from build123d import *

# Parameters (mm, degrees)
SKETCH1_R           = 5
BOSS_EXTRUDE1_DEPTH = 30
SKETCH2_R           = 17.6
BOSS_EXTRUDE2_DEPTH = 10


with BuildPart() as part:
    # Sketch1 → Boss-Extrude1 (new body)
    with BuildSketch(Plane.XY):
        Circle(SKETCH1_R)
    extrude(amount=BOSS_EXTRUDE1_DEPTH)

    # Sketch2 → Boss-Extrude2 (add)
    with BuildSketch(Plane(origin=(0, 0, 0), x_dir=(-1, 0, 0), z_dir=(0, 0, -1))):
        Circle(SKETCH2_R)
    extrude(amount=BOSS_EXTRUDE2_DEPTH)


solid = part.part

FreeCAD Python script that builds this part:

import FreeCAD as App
import Part
import Sketcher
from FreeCAD import Vector
Q = App.Units.Quantity

doc = App.newDocument("Part")
params = doc.addObject("Spreadsheet::Sheet", "Params")
for row, (alias, value) in enumerate([
    ("sketch1_diameter", "10 mm"),
    ("pad1_length", "30 mm"),
    ("sketch2_diameter", "35.2 mm"),
    ("pad2_length", "10 mm"),
], start=1):
    params.set(f"A{row}", alias)
    params.set(f"B{row}", "=" + value)
    params.setAlias(f"B{row}", alias)

body = doc.addObject("PartDesign::Body", "Body")

# Sketch on XY plane
sketch1 = doc.addObject("Sketcher::SketchObject", "Sketch")
body.addObject(sketch1)
sketch1.AttachmentSupport = (doc.XY_Plane, [""])
sketch1.MapMode = "FlatFace"
sketch1.addGeometry(Part.Circle(Vector(0, 0, 0), Vector(0, 0, 1), 5), False)
sketch1.addConstraint(Sketcher.Constraint("Coincident", 0, 3, -1, 1))
sketch1.addConstraint(Sketcher.Constraint("Diameter", 0, Q("10 mm")))
sketch1.setExpression("Constraints[1]", "Params.sketch1_diameter")
pad1 = doc.addObject("PartDesign::Pad", "Pad")
body.addObject(pad1)
pad1.Profile = sketch1
pad1.setExpression("Length", "Params.pad1_length")

# Sketch on XY plane
sketch2 = doc.addObject("Sketcher::SketchObject", "Sketch001")
body.addObject(sketch2)
sketch2.AttachmentSupport = (doc.XY_Plane, [""])
sketch2.MapMode = "FlatFace"
sketch2.addGeometry(Part.Circle(Vector(0, 0, 0), Vector(0, 0, 1), 18), False)
sketch2.addConstraint(Sketcher.Constraint("Coincident", 0, 3, -1, 1))
sketch2.addConstraint(Sketcher.Constraint("Diameter", 0, Q("35.2 mm")))
sketch2.setExpression("Constraints[1]", "Params.sketch2_diameter")
pad2 = doc.addObject("PartDesign::Pad", "Pad001")
body.addObject(pad2)
pad2.Profile = sketch2
pad2.setExpression("Length", "Params.pad2_length")
pad2.Reversed = True

doc.recompute()
